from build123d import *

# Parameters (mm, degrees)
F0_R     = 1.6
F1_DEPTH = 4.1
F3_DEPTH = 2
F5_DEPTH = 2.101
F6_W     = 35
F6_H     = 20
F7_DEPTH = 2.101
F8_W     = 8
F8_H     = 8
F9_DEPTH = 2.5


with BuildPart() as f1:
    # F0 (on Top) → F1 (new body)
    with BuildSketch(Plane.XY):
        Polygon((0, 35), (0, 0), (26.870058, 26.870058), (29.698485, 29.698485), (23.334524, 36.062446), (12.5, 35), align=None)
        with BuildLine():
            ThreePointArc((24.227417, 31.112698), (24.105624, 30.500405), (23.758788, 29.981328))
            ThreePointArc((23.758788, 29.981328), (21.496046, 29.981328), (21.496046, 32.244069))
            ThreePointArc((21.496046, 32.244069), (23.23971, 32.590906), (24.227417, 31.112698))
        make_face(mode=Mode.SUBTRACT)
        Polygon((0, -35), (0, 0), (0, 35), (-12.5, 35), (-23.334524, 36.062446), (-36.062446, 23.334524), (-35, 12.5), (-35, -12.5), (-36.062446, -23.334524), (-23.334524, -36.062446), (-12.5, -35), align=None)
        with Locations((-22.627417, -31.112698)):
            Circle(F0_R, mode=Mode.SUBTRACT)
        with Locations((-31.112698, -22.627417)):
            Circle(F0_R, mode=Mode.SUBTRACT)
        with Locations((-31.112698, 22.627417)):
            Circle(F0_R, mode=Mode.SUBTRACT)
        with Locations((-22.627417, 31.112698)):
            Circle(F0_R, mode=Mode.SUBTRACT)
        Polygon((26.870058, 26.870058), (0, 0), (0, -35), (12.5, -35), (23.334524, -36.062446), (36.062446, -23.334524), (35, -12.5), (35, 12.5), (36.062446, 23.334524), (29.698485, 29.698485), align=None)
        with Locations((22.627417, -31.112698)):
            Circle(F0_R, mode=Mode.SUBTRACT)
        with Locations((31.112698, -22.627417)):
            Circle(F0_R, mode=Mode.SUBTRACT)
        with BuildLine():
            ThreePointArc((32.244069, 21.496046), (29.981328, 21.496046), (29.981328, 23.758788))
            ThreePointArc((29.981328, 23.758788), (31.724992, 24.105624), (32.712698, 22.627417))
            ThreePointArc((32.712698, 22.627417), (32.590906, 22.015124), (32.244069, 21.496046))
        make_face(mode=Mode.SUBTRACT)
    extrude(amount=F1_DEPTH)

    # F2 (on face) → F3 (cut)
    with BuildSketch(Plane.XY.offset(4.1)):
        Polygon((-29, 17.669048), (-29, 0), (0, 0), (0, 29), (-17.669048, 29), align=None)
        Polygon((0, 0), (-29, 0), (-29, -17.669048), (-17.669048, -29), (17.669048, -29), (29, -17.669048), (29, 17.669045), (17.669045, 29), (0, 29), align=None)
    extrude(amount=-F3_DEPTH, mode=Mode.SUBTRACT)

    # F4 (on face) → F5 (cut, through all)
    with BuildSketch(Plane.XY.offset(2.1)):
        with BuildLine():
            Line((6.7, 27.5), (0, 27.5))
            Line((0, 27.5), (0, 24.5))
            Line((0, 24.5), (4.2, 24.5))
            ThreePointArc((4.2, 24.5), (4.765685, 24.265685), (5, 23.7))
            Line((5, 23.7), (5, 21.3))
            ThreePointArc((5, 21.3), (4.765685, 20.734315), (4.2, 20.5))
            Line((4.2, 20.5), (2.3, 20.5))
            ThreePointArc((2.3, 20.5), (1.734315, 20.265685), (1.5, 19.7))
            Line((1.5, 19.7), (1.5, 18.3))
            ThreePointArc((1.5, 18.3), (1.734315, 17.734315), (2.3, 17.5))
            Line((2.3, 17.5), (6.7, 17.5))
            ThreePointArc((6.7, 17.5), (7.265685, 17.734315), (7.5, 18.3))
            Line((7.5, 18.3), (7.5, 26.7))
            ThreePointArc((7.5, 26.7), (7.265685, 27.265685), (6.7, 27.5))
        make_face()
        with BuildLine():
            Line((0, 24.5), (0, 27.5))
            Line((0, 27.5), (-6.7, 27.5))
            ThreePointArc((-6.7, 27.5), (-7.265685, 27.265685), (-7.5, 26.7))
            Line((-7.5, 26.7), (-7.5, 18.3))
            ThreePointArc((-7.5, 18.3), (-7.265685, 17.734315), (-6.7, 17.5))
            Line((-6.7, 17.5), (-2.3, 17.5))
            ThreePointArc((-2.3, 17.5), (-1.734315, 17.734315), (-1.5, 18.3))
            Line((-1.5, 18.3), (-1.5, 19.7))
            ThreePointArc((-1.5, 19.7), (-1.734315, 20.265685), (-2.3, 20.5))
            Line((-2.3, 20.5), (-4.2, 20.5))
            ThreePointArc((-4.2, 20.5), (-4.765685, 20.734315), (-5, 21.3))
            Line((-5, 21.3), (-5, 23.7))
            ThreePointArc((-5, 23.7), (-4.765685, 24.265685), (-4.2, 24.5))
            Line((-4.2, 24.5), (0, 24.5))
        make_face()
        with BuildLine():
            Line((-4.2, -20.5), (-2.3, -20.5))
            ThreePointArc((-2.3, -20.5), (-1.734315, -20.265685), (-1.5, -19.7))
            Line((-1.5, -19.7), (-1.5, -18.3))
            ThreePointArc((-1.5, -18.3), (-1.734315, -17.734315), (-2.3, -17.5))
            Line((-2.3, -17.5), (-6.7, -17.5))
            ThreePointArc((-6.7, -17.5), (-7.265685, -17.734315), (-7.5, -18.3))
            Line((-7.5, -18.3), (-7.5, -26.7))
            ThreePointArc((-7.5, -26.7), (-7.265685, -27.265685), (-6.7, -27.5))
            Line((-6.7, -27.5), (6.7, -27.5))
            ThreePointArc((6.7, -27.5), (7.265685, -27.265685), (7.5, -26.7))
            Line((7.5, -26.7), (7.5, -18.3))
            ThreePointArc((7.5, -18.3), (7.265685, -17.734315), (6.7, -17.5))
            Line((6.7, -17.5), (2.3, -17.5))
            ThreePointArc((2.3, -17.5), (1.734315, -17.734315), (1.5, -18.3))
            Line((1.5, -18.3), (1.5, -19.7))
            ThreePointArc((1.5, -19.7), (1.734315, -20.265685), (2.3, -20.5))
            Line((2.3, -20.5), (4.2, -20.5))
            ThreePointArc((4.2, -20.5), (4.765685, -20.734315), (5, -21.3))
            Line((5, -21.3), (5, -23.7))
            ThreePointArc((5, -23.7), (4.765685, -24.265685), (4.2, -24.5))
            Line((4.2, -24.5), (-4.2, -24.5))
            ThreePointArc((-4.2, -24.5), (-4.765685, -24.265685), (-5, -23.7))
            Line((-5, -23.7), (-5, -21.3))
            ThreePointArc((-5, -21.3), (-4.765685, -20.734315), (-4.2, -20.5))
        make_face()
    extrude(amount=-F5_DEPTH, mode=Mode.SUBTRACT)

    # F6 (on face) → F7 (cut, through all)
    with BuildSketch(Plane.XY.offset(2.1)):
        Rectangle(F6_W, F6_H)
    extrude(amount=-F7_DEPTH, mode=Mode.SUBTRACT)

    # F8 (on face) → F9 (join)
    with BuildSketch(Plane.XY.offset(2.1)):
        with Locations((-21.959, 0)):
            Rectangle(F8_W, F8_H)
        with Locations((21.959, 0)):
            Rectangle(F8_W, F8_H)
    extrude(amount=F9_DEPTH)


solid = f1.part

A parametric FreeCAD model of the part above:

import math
import FreeCAD as App
import Part
import Sketcher

V = App.Vector
Q = App.Units.Quantity


def add_polygon(sketch, points):
    """Adds a closed chain of lines whose ends are joined by coincident constraints."""
    first, n = sketch.GeometryCount, len(points)
    for a, b in zip(points, points[1:] + points[:1]):
        sketch.addGeometry(Part.LineSegment(App.Vector(*a, 0), App.Vector(*b, 0)), False)
    for i in range(n):
        sketch.addConstraint(Sketcher.Constraint("Coincident", first + i, 2, first + (i + 1) % n, 1))

doc = App.newDocument("Part")
body = doc.addObject("PartDesign::Body", "Body")

# Sketch on XY plane
sketch1 = doc.addObject("Sketcher::SketchObject", "Sketch")
body.addObject(sketch1)
sketch1.AttachmentSupport = (doc.XY_Plane, [""])
sketch1.MapMode = "FlatFace"
add_polygon(sketch1, [(12.5, 35), (-12.5, 35), (-23.3, 36.1), (-36.1, 23.3), (-35, 12.5), (-35, -12.5), (-36.1, -23.3), (-23.3, -36.1), (-12.5, -35), (12.5, -35), (23.3, -36.1), (36.1, -23.3), (35, -12.5), (35, 12.5), (36.1, 23.3), (23.3, 36.1)])  # lines 0-15
sketch1.addGeometry(Part.Circle(V(-22.6, -31.1, 0), V(0, 0, 1), 1.6), False)  # 16
sketch1.addGeometry(Part.Circle(V(-31.1, -22.6, 0), V(0, 0, 1), 1.6), False)  # 17
sketch1.addGeometry(Part.Circle(V(22.6, -31.1, 0), V(0, 0, 1), 1.6), False)  # 18
sketch1.addGeometry(Part.Circle(V(31.1, -22.6, 0), V(0, 0, 1), 1.6), False)  # 19
sketch1.addGeometry(Part.Circle(V(-31.1, 22.6, 0), V(0, 0, 1), 1.6), False)  # 20
sketch1.addGeometry(Part.Circle(V(-22.6, 31.1, 0), V(0, 0, 1), 1.6), False)  # 21
sketch1.addGeometry(Part.ArcOfCircle(Part.Circle(V(31.1, 22.6, 0), V(0, 0, 1), 1.6), math.radians(-45), math.radians(0)), False)  # 22
sketch1.addGeometry(Part.ArcOfCircle(Part.Circle(V(31.1, 22.6, 0), V(0, 0, 1), 1.6), math.radians(135), math.radians(315)), False)  # 23
sketch1.addGeometry(Part.ArcOfCircle(Part.Circle(V(31.1, 22.6, 0), V(0, 0, 1), 1.6), math.radians(0), math.radians(135)), False)  # 24
sketch1.addGeometry(Part.ArcOfCircle(Part.Circle(V(22.6, 31.1, 0), V(0, 0, 1), 1.6), math.radians(0), math.radians(135)), False)  # 25
sketch1.addGeometry(Part.ArcOfCircle(Part.Circle(V(22.6, 31.1, 0), V(0, 0, 1), 1.6), math.radians(-45), math.radians(0)), False)  # 26
sketch1.addGeometry(Part.ArcOfCircle(Part.Circle(V(22.6, 31.1, 0), V(0, 0, 1), 1.6), math.radians(135), math.radians(315)), False)  # 27
sketch1.addConstraint([
    Sketcher.Constraint("Tangent", 22, 1, 23, 2),
    Sketcher.Constraint("Tangent", 23, 1, 24, 2),
    Sketcher.Constraint("Tangent", 24, 1, 22, 2),
    Sketcher.Constraint("Tangent", 25, 1, 26, 2),
    Sketcher.Constraint("Tangent", 26, 1, 27, 2),
    Sketcher.Constraint("Tangent", 27, 1, 25, 2),
    Sketcher.Constraint("Horizontal", 0),
    Sketcher.Constraint("Vertical", 4),
    Sketcher.Constraint("Horizontal", 8),
    Sketcher.Constraint("Vertical", 12),
    Sketcher.Constraint("Equal", 16, 17),
    Sketcher.Constraint("Equal", 17, 18),
    Sketcher.Constraint("Equal", 18, 19),
    Sketcher.Constraint("Equal", 19, 20),
    Sketcher.Constraint("Equal", 20, 21),
    Sketcher.Constraint("Equal", 21, 23),
    Sketcher.Constraint("Equal", 24, 25),
    Sketcher.Constraint("Symmetric", 19, 3, 20, 3, -1, 1),
    Sketcher.Constraint("Symmetric", 18, 3, 21, 3, -1, 1),
    Sketcher.Constraint("Symmetric", 17, 3, 22, 3, -1, 1),
    Sketcher.Constraint("Symmetric", 16, 3, 25, 3, -1, 1),
    Sketcher.Constraint("Symmetric", 0, 2, 8, 2, -1, 1),
    Sketcher.Constraint("Symmetric", 1, 2, 9, 2, -1, 1),
    Sketcher.Constraint("Symmetric", 2, 2, 10, 2, -1, 1),
    Sketcher.Constraint("Symmetric", 3, 2, 11, 2, -1, 1),
    Sketcher.Constraint("Symmetric", 5, 2, 13, 2, -1, 1),
    Sketcher.Constraint("Symmetric", 6, 2, 14, 2, -1, 1),
    Sketcher.Constraint("Symmetric", 16, 3, 18, 3, -2),
    Sketcher.Constraint("Symmetric", 17, 3, 19, 3, -2),
    Sketcher.Constraint("Symmetric", 6, 2, 9, 2, -2),
    Sketcher.Constraint("Symmetric", 5, 2, 10, 2, -2),
    Sketcher.Constraint("Perpendicular", 1, 5),
    Sketcher.Constraint("Perpendicular", 2, 6),
    Sketcher.Constraint("Perpendicular", 3, 7),
    Sketcher.Constraint("Perpendicular", 9, 13),
    Sketcher.Constraint("Perpendicular", 11, 15),
    Sketcher.Constraint("Horizontal", 4, 2, 11, 2),
    Sketcher.Constraint("Horizontal", 23, 3, 24, 1),
    Sketcher.Constraint("Horizontal", 27, 3, 25, 1),
    Sketcher.Constraint("Equal", 8, 4),
    Sketcher.Constraint("Equal", 1, 3),
    Sketcher.Constraint("Diameter", 16, Q("3.2 mm")),
    Sketcher.Constraint("DistanceX", 0, 2, 0, 1, Q("25 mm")),
    Sketcher.Constraint("Distance", 2, Q("18 mm")),
    Sketcher.Constraint("DistanceY", -1, 1, 0, 2, Q("35 mm")),
    Sketcher.Constraint("DistanceY", 16, 3, -1, 1, Q("31.112698 mm")),
    Sketcher.Constraint("DistanceX", 17, 3, -1, 1, Q("31.112698 mm")),
    Sketcher.Constraint("Distance", 1, Q("10.886492 mm")),
    Sketcher.Constraint("DistanceX", -1, 1, 22, 1, Q("32.244069 mm")),
    Sketcher.Constraint("DistanceY", -1, 1, 23, 1, Q("23.758788 mm")),
    Sketcher.Constraint("DistanceX", -1, 1, 26, 1, Q("23.758788 mm")),
    Sketcher.Constraint("DistanceY", -1, 1, 27, 1, Q("32.244069 mm")),
    Sketcher.Constraint("DistanceX", 17, 3, 16, 3, Q("8.485281 mm")),
    Sketcher.Constraint("DistanceY", 16, 3, 17, 3, Q("8.485281 mm")),
])
pad1 = doc.addObject("PartDesign::Pad", "Pad")
body.addObject(pad1)
pad1.Profile = sketch1
pad1.Length = 4.1

# Sketch on XY plane
sketch2 = doc.addObject("Sketcher::SketchObject", "Sketch001")
body.addObject(sketch2)
sketch2.AttachmentSupport = (doc.XY_Plane, [""])
sketch2.MapMode = "FlatFace"
sketch2.AttachmentOffset = App.Placement(V(0, 0, 4.1), App.Rotation())
add_polygon(sketch2, [(-29, 18), (-29, -18), (-18, -29), (18, -29), (29, -18), (29, 18), (18, 29), (-18, 29)])  # lines 0-7
sketch2.addConstraint([
    Sketcher.Constraint("Vertical", 0),
    Sketcher.Constraint("Horizontal", 2),
    Sketcher.Constraint("Vertical", 4),
    Sketcher.Constraint("Horizontal", 6),
    Sketcher.Constraint("Symmetric", 0, 2, 4, 2, -1, 1),
    Sketcher.Constraint("Symmetric", 1, 2, 5, 2, -1, 1),
    Sketcher.Constraint("Perpendicular", 1, 3),
    Sketcher.Constraint("Perpendicular", 5, 7),
    Sketcher.Constraint("Horizontal", 0, 2, 3, 2),
    Sketcher.Constraint("Vertical", 1, 2, 6, 2),
    Sketcher.Constraint("Equal", 2, 0),
    Sketcher.Constraint("Equal", 6, 4),
    Sketcher.Constraint("DistanceX", 0, 2, -1, 1, Q("29 mm")),
    Sketcher.Constraint("Distance", 5, Q("16.02439 mm")),
])
pocket1 = doc.addObject("PartDesign::Pocket", "Pocket")
body.addObject(pocket1)
pocket1.Profile = sketch2
pocket1.Length = 2

# Sketch on XY plane
sketch3 = doc.addObject("Sketcher::SketchObject", "Sketch002")
body.addObject(sketch3)
sketch3.AttachmentSupport = (doc.XY_Plane, [""])
sketch3.MapMode = "FlatFace"
sketch3.AttachmentOffset = App.Placement(V(0, 0, 2.1), App.Rotation())
sketch3.addGeometry([
    Part.LineSegment(V(6.7, 27.5, 0), V(-6.7, 27.5, 0)),  # 0
    Part.ArcOfCircle(Part.Circle(V(-6.7, 26.7, 0), V(0, 0, 1), 0.8), math.radians(90), math.radians(180)),  # 1
    Part.LineSegment(V(-7.5, 26.7, 0), V(-7.5, 18.3, 0)),  # 2
    Part.ArcOfCircle(Part.Circle(V(-6.7, 18.3, 0), V(0, 0, 1), 0.8), math.radians(-180), math.radians(-90)),  # 3
    Part.LineSegment(V(-6.7, 17.5, 0), V(-2.3, 17.5, 0)),  # 4
    Part.ArcOfCircle(Part.Circle(V(-2.3, 18.3, 0), V(0, 0, 1), 0.8), math.radians(-90), math.radians(0)),  # 5
    Part.LineSegment(V(-1.5, 18.3, 0), V(-1.5, 19.7, 0)),  # 6
    Part.ArcOfCircle(Part.Circle(V(-2.3, 19.7, 0), V(0, 0, 1), 0.8), math.radians(0), math.radians(90)),  # 7
    Part.LineSegment(V(-2.3, 20.5, 0), V(-4.2, 20.5, 0)),  # 8
    Part.ArcOfCircle(Part.Circle(V(-4.2, 21.3, 0), V(0, 0, 1), 0.8), math.radians(-180), math.radians(-90)),  # 9
    Part.LineSegment(V(-5, 21.3, 0), V(-5, 23.7, 0)),  # 10
    Part.ArcOfCircle(Part.Circle(V(-4.2, 23.7, 0), V(0, 0, 1), 0.8), math.radians(90), math.radians(180)),  # 11
    Part.LineSegment(V(-4.2, 24.5, 0), V(4.2, 24.5, 0)),  # 12
    Part.ArcOfCircle(Part.Circle(V(4.2, 23.7, 0), V(0, 0, 1), 0.8), math.radians(0), math.radians(90)),  # 13
    Part.LineSegment(V(5, 23.7, 0), V(5, 21.3, 0)),  # 14
    Part.ArcOfCircle(Part.Circle(V(4.2, 21.3, 0), V(0, 0, 1), 0.8), math.radians(-90), math.radians(0)),  # 15
    Part.LineSegment(V(4.2, 20.5, 0), V(2.3, 20.5, 0)),  # 16
    Part.ArcOfCircle(Part.Circle(V(2.3, 19.7, 0), V(0, 0, 1), 0.8), math.radians(90), math.radians(180)),  # 17
    Part.LineSegment(V(1.5, 19.7, 0), V(1.5, 18.3, 0)),  # 18
    Part.ArcOfCircle(Part.Circle(V(2.3, 18.3, 0), V(0, 0, 1), 0.8), math.radians(-180), math.radians(-90)),  # 19
    Part.LineSegment(V(2.3, 17.5, 0), V(6.7, 17.5, 0)),  # 20
    Part.ArcOfCircle(Part.Circle(V(6.7, 18.3, 0), V(0, 0, 1), 0.8), math.radians(-90), math.radians(0)),  # 21
    Part.LineSegment(V(7.5, 18.3, 0), V(7.5, 26.7, 0)),  # 22
    Part.ArcOfCircle(Part.Circle(V(6.7, 26.7, 0), V(0, 0, 1), 0.8), math.radians(0), math.radians(90)),  # 23
    Part.LineSegment(V(-4.2, -20.5, 0), V(-2.3, -20.5, 0)),  # 24
    Part.ArcOfCircle(Part.Circle(V(-2.3, -19.7, 0), V(0, 0, 1), 0.8), math.radians(-90), math.radians(0)),  # 25
    Part.LineSegment(V(-1.5, -19.7, 0), V(-1.5, -18.3, 0)),  # 26
    Part.ArcOfCircle(Part.Circle(V(-2.3, -18.3, 0), V(0, 0, 1), 0.8), math.radians(0), math.radians(90)),  # 27
    Part.LineSegment(V(-2.3, -17.5, 0), V(-6.7, -17.5, 0)),  # 28
    Part.ArcOfCircle(Part.Circle(V(-6.7, -18.3, 0), V(0, 0, 1), 0.8), math.radians(90), math.radians(180)),  # 29
    Part.LineSegment(V(-7.5, -18.3, 0), V(-7.5, -26.7, 0)),  # 30
    Part.ArcOfCircle(Part.Circle(V(-6.7, -26.7, 0), V(0, 0, 1), 0.8), math.radians(-180), math.radians(-90)),  # 31
    Part.LineSegment(V(-6.7, -27.5, 0), V(6.7, -27.5, 0)),  # 32
    Part.ArcOfCircle(Part.Circle(V(6.7, -26.7, 0), V(0, 0, 1), 0.8), math.radians(-90), math.radians(0)),  # 33
    Part.LineSegment(V(7.5, -26.7, 0), V(7.5, -18.3, 0)),  # 34
    Part.ArcOfCircle(Part.Circle(V(6.7, -18.3, 0), V(0, 0, 1), 0.8), math.radians(0), math.radians(90)),  # 35
    Part.LineSegment(V(6.7, -17.5, 0), V(2.3, -17.5, 0)),  # 36
    Part.ArcOfCircle(Part.Circle(V(2.3, -18.3, 0), V(0, 0, 1), 0.8), math.radians(90), math.radians(180)),  # 37
    Part.LineSegment(V(1.5, -18.3, 0), V(1.5, -19.7, 0)),  # 38
    Part.ArcOfCircle(Part.Circle(V(2.3, -19.7, 0), V(0, 0, 1), 0.8), math.radians(-180), math.radians(-90)),  # 39
    Part.LineSegment(V(2.3, -20.5, 0), V(4.2, -20.5, 0)),  # 40
    Part.ArcOfCircle(Part.Circle(V(4.2, -21.3, 0), V(0, 0, 1), 0.8), math.radians(0), math.radians(90)),  # 41
    Part.LineSegment(V(5, -21.3, 0), V(5, -23.7, 0)),  # 42
    Part.ArcOfCircle(Part.Circle(V(4.2, -23.7, 0), V(0, 0, 1), 0.8), math.radians(-90), math.radians(0)),  # 43
    Part.LineSegment(V(4.2, -24.5, 0), V(-4.2, -24.5, 0)),  # 44
    Part.ArcOfCircle(Part.Circle(V(-4.2, -23.7, 0), V(0, 0, 1), 0.8), math.radians(-180), math.radians(-90)),  # 45
    Part.LineSegment(V(-5, -23.7, 0), V(-5, -21.3, 0)),  # 46
    Part.ArcOfCircle(Part.Circle(V(-4.2, -21.3, 0), V(0, 0, 1), 0.8), math.radians(90), math.radians(180)),  # 47
], False)
sketch3.addConstraint([
    Sketcher.Constraint("Tangent", 0, 2, 1, 1),
    Sketcher.Constraint("Tangent", 1, 2, 2, 1),
    Sketcher.Constraint("Tangent", 2, 2, 3, 1),
    Sketcher.Constraint("Tangent", 3, 2, 4, 1),
    Sketcher.Constraint("Tangent", 4, 2, 5, 1),
    Sketcher.Constraint("Tangent", 5, 2, 6, 1),
    Sketcher.Constraint("Tangent", 6, 2, 7, 1),
    Sketcher.Constraint("Tangent", 7, 2, 8, 1),
    Sketcher.Constraint("Tangent", 8, 2, 9, 2),
    Sketcher.Constraint("Tangent", 9, 1, 10, 1),
    Sketcher.Constraint("Tangent", 10, 2, 11, 2),
    Sketcher.Constraint("Tangent", 11, 1, 12, 1),
    Sketcher.Constraint("Tangent", 12, 2, 13, 2),
    Sketcher.Constraint("Tangent", 13, 1, 14, 1),
    Sketcher.Constraint("Tangent", 14, 2, 15, 2),
    Sketcher.Constraint("Tangent", 15, 1, 16, 1),
    Sketcher.Constraint("Tangent", 16, 2, 17, 1),
    Sketcher.Constraint("Tangent", 17, 2, 18, 1),
    Sketcher.Constraint("Tangent", 18, 2, 19, 1),
    Sketcher.Constraint("Tangent", 19, 2, 20, 1),
    Sketcher.Constraint("Tangent", 20, 2, 21, 1),
    Sketcher.Constraint("Tangent", 21, 2, 22, 1),
    Sketcher.Constraint("Tangent", 22, 2, 23, 1),
    Sketcher.Constraint("Tangent", 23, 2, 0, 1),
    Sketcher.Constraint("Tangent", 24, 2, 25, 1),
    Sketcher.Constraint("Tangent", 25, 2, 26, 1),
    Sketcher.Constraint("Tangent", 26, 2, 27, 1),
    Sketcher.Constraint("Tangent", 27, 2, 28, 1),
    Sketcher.Constraint("Tangent", 28, 2, 29, 1),
    Sketcher.Constraint("Tangent", 29, 2, 30, 1),
    Sketcher.Constraint("Tangent", 30, 2, 31, 1),
    Sketcher.Constraint("Tangent", 31, 2, 32, 1),
    Sketcher.Constraint("Tangent", 32, 2, 33, 1),
    Sketcher.Constraint("Tangent", 33, 2, 34, 1),
    Sketcher.Constraint("Tangent", 34, 2, 35, 1),
    Sketcher.Constraint("Tangent", 35, 2, 36, 1),
    Sketcher.Constraint("Tangent", 36, 2, 37, 1),
    Sketcher.Constraint("Tangent", 37, 2, 38, 1),
    Sketcher.Constraint("Tangent", 38, 2, 39, 1),
    Sketcher.Constraint("Tangent", 39, 2, 40, 1),
    Sketcher.Constraint("Tangent", 40, 2, 41, 2),
    Sketcher.Constraint("Tangent", 41, 1, 42, 1),
    Sketcher.Constraint("Tangent", 42, 2, 43, 2),
    Sketcher.Constraint("Tangent", 43, 1, 44, 1),
    Sketcher.Constraint("Tangent", 44, 2, 45, 2),
    Sketcher.Constraint("Tangent", 45, 1, 46, 1),
    Sketcher.Constraint("Tangent", 46, 2, 47, 2),
    Sketcher.Constraint("Tangent", 47, 1, 24, 1),
    Sketcher.Constraint("Horizontal", 0),
    Sketcher.Constraint("Vertical", 2),
    Sketcher.Constraint("Horizontal", 4),
    Sketcher.Constraint("Vertical", 6),
    Sketcher.Constraint("Horizontal", 8),
    Sketcher.Constraint("Vertical", 10),
    Sketcher.Constraint("Horizontal", 12),
    Sketcher.Constraint("Vertical", 14),
    Sketcher.Constraint("Horizontal", 16),
    Sketcher.Constraint("Vertical", 18),
    Sketcher.Constraint("Horizontal", 20),
    Sketcher.Constraint("Vertical", 22),
    Sketcher.Constraint("Horizontal", 24),
    Sketcher.Constraint("Vertical", 26),
    Sketcher.Constraint("Horizontal", 28),
    Sketcher.Constraint("Vertical", 30),
    Sketcher.Constraint("Horizontal", 32),
    Sketcher.Constraint("Vertical", 34),
    Sketcher.Constraint("Horizontal", 36),
    Sketcher.Constraint("Vertical", 38),
    Sketcher.Constraint("Horizontal", 40),
    Sketcher.Constraint("Vertical", 42),
    Sketcher.Constraint("Horizontal", 44),
    Sketcher.Constraint("Vertical", 46),
    Sketcher.Constraint("Equal", 1, 3),
    Sketcher.Constraint("Equal", 3, 5),
    Sketcher.Constraint("Equal", 5, 7),
    Sketcher.Constraint("Equal", 7, 9),
    Sketcher.Constraint("Equal", 9, 11),
    Sketcher.Constraint("Equal", 11, 13),
    Sketcher.Constraint("Equal", 13, 15),
    Sketcher.Constraint("Equal", 15, 17),
    Sketcher.Constraint("Equal", 17, 19),
    Sketcher.Constraint("Equal", 19, 21),
    Sketcher.Constraint("Equal", 21, 23),
    Sketcher.Constraint("Equal", 23, 25),
    Sketcher.Constraint("Equal", 25, 27),
    Sketcher.Constraint("Equal", 27, 29),
    Sketcher.Constraint("Equal", 29, 31),
    Sketcher.Constraint("Equal", 31, 33),
    Sketcher.Constraint("Equal", 33, 35),
    Sketcher.Constraint("Equal", 35, 37),
    Sketcher.Constraint("Equal", 37, 39),
    Sketcher.Constraint("Equal", 39, 41),
    Sketcher.Constraint("Equal", 41, 43),
    Sketcher.Constraint("Equal", 43, 45),
    Sketcher.Constraint("Equal", 45, 47),
    Sketcher.Constraint("Symmetric", 17, 3, 25, 3, -1, 1),
    Sketcher.Constraint("Symmetric", 21, 3, 29, 3, -1, 1),
    Sketcher.Constraint("Symmetric", 1, 3, 33, 3, -1, 1),
    Sketcher.Constraint("Symmetric", 5, 3, 37, 3, -1, 1),
    Sketcher.Constraint("Symmetric", 9, 3, 41, 3, -1, 1),
    Sketcher.Constraint("Symmetric", 13, 3, 45, 3, -1, 1),
    Sketcher.Constraint("Symmetric", 9, 3, 15, 3, -2),
    Sketcher.Constraint("Symmetric", 5, 3, 19, 3, -2),
    Sketcher.Constraint("Vertical", 3, 3, 29, 3),
    Sketcher.Constraint("Equal", 44, 2),
    Sketcher.Constraint("Radius", 1, Q("0.800001 mm")),
    Sketcher.Constraint("DistanceX", 0, 2, 0, 1, Q("13.4 mm")),
    Sketcher.Constraint("DistanceX", 4, 1, 4, 2, Q("4.4 mm")),
    Sketcher.Constraint("DistanceX", 8, 2, 8, 1, Q("1.9 mm")),
    Sketcher.Constraint("DistanceY", 6, 1, 6, 2, Q("1.4 mm")),
    Sketcher.Constraint("DistanceY", 10, 1, 10, 2, Q("2.4 mm")),
    Sketcher.Constraint("DistanceY", -1, 1, 1, 3, Q("26.699999 mm")),
])
pocket2 = doc.addObject("PartDesign::Pocket", "Pocket001")
body.addObject(pocket2)
pocket2.Profile = sketch3
pocket2.Type = "ThroughAll"

# Sketch on XY plane
sketch4 = doc.addObject("Sketcher::SketchObject", "Sketch003")
body.addObject(sketch4)
sketch4.AttachmentSupport = (doc.XY_Plane, [""])
sketch4.MapMode = "FlatFace"
sketch4.AttachmentOffset = App.Placement(V(0, 0, 2.1), App.Rotation())
add_polygon(sketch4, [(-18, 10), (-18, -10), (18, -10), (18, 10)])  # lines 0-3
sketch4.addConstraint([
    Sketcher.Constraint("Vertical", 0),
    Sketcher.Constraint("Horizontal", 1),
    Sketcher.Constraint("Vertical", 2),
    Sketcher.Constraint("Horizontal", 3),
    Sketcher.Constraint("Symmetric", 0, 2, 2, 2, -1, 1),
    Sketcher.Constraint("DistanceX", 1, 1, 1, 2, Q("35 mm")),
    Sketcher.Constraint("DistanceY", 0, 2, 0, 1, Q("20 mm")),
])
pocket3 = doc.addObject("PartDesign::Pocket", "Pocket002")
body.addObject(pocket3)
pocket3.Profile = sketch4
pocket3.Type = "ThroughAll"

# Sketch on XY plane
sketch5 = doc.addObject("Sketcher::SketchObject", "Sketch004")
body.addObject(sketch5)
sketch5.AttachmentSupport = (doc.XY_Plane, [""])
sketch5.MapMode = "FlatFace"
sketch5.AttachmentOffset = App.Placement(V(0, 0, 2.1), App.Rotation())
add_polygon(sketch5, [(-26, 4), (-26, -4), (-18, -4), (-18, 4)])  # lines 0-3
add_polygon(sketch5, [(18, 4), (18, -4), (26, -4), (26, 4)])  # lines 4-7
sketch5.addConstraint([
    Sketcher.Constraint("Vertical", 0),
    Sketcher.Constraint("Horizontal", 1),
    Sketcher.Constraint("Vertical", 2),
    Sketcher.Constraint("Horizontal", 3),
    Sketcher.Constraint("Vertical", 4),
    Sketcher.Constraint("Horizontal", 5),
    Sketcher.Constraint("Vertical", 6),
    Sketcher.Constraint("Horizontal", 7),
    Sketcher.Constraint("Symmetric", 2, 2, 4, 2, -1, 1),
    Sketcher.Constraint("Symmetric", 0, 2, 6, 2, -1, 1),
    Sketcher.Constraint("Horizontal", 1, 2, 4, 2),
    Sketcher.Constraint("Equal", 7, 0),
    Sketcher.Constraint("DistanceX", 1, 1, 1, 2, Q("8 mm")),
    Sketcher.Constraint("DistanceX", 0, 2, -1, 1, Q("25.959 mm")),
])
pad2 = doc.addObject("PartDesign::Pad", "Pad001")
body.addObject(pad2)
pad2.Profile = sketch5
pad2.Length = 2.5

doc.recompute()
